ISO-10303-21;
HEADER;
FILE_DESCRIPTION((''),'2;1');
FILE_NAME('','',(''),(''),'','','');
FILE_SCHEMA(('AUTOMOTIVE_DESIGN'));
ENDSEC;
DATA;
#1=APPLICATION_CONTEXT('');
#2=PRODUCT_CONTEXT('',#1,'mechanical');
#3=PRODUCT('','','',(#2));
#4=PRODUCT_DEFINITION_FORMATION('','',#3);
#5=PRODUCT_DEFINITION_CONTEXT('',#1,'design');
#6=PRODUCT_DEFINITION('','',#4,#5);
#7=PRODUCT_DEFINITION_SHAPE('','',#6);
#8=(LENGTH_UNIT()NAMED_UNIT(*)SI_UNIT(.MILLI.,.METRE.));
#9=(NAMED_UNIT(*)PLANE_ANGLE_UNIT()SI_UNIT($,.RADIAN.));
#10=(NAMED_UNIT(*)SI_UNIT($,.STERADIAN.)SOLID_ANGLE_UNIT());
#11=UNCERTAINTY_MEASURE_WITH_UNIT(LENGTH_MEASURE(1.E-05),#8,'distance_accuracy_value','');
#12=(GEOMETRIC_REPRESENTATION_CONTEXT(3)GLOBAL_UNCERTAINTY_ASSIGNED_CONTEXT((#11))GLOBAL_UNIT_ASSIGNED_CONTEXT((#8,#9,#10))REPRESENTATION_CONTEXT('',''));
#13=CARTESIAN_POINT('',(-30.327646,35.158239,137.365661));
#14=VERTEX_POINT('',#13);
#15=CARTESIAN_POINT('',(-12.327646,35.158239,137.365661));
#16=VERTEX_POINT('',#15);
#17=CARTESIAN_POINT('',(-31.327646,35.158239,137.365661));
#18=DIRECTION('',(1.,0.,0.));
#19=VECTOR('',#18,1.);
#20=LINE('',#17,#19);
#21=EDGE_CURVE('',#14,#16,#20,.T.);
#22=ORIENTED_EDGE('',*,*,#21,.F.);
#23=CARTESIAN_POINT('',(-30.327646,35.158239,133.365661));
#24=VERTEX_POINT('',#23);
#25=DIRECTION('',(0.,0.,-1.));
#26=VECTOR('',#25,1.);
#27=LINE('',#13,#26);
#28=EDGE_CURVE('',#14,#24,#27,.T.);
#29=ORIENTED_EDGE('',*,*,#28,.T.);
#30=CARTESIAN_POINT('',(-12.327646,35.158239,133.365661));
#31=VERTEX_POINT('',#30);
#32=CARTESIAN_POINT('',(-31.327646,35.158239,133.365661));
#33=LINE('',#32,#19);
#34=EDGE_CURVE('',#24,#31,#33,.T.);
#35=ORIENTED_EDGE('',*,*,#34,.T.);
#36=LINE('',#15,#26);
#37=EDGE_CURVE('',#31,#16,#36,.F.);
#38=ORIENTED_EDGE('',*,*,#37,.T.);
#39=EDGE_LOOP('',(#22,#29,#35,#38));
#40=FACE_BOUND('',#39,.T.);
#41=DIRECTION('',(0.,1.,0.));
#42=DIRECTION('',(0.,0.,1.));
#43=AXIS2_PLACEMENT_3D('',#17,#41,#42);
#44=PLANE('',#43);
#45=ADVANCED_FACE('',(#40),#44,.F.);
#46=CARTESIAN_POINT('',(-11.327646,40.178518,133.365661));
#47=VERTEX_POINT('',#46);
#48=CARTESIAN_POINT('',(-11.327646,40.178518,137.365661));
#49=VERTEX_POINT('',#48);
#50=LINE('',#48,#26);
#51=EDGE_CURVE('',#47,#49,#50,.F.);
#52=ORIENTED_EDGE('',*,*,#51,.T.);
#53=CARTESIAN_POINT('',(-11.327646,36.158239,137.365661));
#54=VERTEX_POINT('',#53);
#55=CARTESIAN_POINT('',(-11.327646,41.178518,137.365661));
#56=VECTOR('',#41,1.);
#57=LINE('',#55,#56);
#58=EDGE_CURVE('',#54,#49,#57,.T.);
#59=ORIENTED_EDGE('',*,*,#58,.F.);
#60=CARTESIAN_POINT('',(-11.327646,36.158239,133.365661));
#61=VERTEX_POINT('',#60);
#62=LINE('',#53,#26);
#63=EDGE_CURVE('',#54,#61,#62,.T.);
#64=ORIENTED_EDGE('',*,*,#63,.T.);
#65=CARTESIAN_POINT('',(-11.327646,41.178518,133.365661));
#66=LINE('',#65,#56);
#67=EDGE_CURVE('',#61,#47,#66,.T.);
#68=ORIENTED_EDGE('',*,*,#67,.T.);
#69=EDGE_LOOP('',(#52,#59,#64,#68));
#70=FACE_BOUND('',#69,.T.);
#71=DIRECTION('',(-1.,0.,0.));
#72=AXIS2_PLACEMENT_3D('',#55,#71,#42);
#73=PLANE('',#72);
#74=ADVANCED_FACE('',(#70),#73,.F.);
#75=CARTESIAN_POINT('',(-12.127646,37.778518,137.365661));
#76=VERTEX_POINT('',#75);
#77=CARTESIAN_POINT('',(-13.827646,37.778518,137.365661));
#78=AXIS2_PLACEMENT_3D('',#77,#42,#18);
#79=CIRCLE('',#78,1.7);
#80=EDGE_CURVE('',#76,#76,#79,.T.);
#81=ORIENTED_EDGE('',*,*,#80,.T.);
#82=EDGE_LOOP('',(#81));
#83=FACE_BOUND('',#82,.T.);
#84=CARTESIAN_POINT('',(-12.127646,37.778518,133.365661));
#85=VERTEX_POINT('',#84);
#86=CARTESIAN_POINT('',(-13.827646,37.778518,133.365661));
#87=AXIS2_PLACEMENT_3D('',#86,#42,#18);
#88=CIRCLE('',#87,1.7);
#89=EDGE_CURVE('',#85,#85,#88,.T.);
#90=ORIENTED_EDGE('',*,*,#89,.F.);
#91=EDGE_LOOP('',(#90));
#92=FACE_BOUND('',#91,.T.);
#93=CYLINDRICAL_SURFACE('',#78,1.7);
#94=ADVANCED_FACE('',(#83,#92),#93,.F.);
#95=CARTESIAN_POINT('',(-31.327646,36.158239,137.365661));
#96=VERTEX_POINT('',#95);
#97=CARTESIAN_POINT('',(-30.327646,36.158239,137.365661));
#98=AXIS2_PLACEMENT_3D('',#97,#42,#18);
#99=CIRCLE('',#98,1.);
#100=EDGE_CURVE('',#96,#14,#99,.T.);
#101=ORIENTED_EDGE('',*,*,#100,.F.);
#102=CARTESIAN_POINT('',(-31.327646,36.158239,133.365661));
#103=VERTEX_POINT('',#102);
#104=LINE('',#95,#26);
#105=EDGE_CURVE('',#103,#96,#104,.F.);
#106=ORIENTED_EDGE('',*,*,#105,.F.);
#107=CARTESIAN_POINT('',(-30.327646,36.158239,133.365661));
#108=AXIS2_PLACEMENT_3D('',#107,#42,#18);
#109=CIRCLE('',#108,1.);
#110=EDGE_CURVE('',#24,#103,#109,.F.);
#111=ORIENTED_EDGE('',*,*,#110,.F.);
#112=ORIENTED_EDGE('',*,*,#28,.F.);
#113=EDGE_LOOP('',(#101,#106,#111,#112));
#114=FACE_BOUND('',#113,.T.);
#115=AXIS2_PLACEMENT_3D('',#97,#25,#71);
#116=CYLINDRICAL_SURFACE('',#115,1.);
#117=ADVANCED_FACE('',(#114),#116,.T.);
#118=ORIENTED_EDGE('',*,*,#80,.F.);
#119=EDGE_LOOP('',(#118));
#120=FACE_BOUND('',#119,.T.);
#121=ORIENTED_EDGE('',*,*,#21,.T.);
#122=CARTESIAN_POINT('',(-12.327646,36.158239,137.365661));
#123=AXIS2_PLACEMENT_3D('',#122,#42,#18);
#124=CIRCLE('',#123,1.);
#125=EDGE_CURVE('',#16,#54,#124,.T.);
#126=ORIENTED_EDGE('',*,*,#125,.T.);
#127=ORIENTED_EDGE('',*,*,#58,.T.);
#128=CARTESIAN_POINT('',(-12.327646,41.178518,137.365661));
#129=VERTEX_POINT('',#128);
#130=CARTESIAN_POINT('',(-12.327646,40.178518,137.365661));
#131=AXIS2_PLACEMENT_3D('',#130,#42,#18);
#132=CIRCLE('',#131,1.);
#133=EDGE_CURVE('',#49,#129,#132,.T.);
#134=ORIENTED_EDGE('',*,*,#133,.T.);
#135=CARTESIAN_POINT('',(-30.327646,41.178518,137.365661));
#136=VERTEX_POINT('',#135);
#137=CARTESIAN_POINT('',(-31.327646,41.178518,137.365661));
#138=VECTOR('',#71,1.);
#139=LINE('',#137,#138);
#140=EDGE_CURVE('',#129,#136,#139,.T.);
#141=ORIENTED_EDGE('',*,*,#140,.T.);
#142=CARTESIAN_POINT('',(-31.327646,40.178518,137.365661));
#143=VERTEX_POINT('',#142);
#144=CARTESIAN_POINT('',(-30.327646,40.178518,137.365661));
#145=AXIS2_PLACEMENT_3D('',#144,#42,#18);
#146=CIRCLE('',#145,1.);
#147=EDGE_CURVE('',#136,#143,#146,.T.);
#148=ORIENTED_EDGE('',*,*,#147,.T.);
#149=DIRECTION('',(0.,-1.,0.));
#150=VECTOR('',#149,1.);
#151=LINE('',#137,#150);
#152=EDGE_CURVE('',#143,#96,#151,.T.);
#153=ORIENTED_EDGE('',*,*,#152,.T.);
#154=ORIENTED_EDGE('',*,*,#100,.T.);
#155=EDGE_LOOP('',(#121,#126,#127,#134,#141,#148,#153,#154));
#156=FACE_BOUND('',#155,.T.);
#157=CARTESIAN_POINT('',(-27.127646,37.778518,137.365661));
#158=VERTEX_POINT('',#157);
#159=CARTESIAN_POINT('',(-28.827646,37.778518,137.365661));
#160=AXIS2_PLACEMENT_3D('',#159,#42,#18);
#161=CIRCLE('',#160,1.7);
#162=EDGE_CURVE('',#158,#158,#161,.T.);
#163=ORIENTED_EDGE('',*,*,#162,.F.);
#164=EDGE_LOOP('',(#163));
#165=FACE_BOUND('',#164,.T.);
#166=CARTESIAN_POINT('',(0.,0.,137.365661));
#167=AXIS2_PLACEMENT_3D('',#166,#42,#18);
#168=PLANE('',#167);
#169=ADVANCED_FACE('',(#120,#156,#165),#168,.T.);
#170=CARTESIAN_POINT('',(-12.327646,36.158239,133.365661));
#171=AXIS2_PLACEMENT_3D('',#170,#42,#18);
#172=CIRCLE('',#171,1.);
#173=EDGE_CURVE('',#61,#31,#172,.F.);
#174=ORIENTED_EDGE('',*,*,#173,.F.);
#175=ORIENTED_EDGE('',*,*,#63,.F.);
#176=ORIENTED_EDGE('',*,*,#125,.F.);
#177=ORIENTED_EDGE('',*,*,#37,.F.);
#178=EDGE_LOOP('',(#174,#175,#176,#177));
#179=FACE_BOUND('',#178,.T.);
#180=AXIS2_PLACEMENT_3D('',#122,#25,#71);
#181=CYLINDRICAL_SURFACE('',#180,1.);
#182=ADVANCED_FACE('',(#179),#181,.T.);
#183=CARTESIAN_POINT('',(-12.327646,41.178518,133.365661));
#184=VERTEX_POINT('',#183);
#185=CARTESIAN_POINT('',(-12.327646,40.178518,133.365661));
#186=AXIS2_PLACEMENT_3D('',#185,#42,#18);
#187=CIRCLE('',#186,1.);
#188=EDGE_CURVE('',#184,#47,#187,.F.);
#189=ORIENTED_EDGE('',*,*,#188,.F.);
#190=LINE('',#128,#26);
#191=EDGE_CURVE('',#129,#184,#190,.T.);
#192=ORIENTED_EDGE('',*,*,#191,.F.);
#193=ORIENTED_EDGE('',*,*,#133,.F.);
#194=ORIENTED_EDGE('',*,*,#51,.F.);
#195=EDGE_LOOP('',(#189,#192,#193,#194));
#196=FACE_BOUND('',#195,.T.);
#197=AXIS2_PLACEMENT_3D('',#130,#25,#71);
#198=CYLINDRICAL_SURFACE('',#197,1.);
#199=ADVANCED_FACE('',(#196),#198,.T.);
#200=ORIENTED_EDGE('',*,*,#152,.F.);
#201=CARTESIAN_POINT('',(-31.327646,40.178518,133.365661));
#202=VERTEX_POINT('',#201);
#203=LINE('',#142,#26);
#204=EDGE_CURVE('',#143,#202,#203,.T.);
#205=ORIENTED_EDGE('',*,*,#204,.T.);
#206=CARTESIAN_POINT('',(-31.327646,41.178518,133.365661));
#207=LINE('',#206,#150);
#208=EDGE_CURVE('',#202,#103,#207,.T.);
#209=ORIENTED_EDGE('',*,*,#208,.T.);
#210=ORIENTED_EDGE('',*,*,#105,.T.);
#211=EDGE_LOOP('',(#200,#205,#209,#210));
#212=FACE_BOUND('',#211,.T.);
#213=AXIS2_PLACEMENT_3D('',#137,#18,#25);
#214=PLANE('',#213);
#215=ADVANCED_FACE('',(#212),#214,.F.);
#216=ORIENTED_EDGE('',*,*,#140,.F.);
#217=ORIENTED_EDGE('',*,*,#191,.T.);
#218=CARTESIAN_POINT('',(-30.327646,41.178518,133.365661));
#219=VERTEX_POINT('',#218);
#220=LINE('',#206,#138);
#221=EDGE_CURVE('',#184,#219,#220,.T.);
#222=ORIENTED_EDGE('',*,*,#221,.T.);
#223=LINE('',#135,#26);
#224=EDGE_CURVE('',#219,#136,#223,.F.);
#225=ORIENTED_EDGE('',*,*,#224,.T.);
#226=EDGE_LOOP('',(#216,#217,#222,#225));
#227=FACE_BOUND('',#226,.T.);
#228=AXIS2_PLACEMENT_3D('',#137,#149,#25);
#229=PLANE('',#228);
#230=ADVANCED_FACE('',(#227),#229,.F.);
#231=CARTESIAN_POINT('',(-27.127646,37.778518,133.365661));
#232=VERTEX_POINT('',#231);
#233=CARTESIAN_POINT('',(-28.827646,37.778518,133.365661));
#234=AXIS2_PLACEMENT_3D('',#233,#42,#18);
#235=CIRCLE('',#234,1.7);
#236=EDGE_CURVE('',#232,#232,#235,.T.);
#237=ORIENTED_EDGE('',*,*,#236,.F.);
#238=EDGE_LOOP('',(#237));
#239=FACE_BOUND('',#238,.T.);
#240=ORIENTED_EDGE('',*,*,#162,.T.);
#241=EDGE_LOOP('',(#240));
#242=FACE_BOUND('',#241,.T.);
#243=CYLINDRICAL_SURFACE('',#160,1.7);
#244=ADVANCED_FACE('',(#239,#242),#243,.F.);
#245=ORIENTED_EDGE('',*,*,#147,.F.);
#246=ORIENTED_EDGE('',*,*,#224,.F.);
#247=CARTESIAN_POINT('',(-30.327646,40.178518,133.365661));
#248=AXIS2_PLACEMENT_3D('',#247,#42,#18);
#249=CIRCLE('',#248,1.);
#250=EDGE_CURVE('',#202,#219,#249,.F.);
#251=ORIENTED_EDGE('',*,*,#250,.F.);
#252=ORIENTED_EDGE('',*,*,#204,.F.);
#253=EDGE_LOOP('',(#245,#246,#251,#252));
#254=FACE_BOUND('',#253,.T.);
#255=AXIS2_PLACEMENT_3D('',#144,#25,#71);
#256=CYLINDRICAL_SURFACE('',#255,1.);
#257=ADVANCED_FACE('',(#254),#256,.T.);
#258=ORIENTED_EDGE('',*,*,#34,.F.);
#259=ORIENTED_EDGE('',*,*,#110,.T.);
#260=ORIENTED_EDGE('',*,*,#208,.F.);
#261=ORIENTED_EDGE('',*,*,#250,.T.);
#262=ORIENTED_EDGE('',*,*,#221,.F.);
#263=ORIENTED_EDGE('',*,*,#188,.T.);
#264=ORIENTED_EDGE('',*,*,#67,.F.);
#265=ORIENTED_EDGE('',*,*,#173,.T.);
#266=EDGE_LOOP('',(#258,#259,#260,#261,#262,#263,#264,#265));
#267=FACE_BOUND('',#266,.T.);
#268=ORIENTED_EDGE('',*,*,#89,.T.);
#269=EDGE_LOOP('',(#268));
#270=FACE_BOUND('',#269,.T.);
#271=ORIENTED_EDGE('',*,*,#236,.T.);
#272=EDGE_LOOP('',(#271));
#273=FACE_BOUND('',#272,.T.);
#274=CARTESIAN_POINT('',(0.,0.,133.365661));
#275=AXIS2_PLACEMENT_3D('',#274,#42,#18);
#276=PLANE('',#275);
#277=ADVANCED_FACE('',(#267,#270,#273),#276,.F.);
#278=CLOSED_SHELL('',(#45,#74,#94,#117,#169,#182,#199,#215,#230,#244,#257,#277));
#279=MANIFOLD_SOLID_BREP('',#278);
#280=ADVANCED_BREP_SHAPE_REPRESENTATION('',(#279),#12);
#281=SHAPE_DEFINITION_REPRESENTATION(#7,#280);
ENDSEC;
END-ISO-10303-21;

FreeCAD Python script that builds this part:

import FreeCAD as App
import Part
import Sketcher

V = App.Vector
Q = App.Units.Quantity


def edges_at(feature, points):
    """Names of the edges that pass closest to the given points."""
    edges = feature.Shape.Edges
    near = lambda p: min(range(len(edges)), key=lambda i: edges[i].distToShape(Part.Vertex(*p))[0])
    return sorted({f"Edge{near(p) + 1}" for p in points})


def add_polygon(sketch, points):
    """Adds a closed chain of lines whose ends are joined by coincident constraints."""
    first, n = sketch.GeometryCount, len(points)
    for a, b in zip(points, points[1:] + points[:1]):
        sketch.addGeometry(Part.LineSegment(App.Vector(*a, 0), App.Vector(*b, 0)), False)
    for i in range(n):
        sketch.addConstraint(Sketcher.Constraint("Coincident", first + i, 2, first + (i + 1) % n, 1))

doc = App.newDocument("Part")
body = doc.addObject("PartDesign::Body", "Body")

# Sketch on XY plane
sketch1 = body.newObject("Sketcher::SketchObject", "Sketch")
sketch1.AttachmentSupport = (doc.getObject("XY_Plane"), [""])
sketch1.MapMode = "FlatFace"
sketch1.AttachmentOffset = App.Placement(V(0, 0, 133.365661), App.Rotation())
add_polygon(sketch1, [(-31.327646, 41.178518), (-31.327646, 35.158239), (-11.327646, 35.158239), (-11.327646, 41.178518)])  # lines 0-3
sketch1.addConstraint(Sketcher.Constraint("Vertical", 0))
sketch1.addConstraint(Sketcher.Constraint("Horizontal", 1))
sketch1.addConstraint(Sketcher.Constraint("Vertical", 2))
sketch1.addConstraint(Sketcher.Constraint("Horizontal", 3))
sketch1.addConstraint(Sketcher.Constraint("DistanceX", 1, 1, 1, 2, Q("20 mm")))
sketch1.addConstraint(Sketcher.Constraint("DistanceY", 0, 2, 0, 1, Q("6.020279 mm")))
sketch1.addConstraint(Sketcher.Constraint("DistanceY", -1, 1, 0, 2, Q("35.158239 mm")))
sketch1.addConstraint(Sketcher.Constraint("DistanceX", 0, 2, -1, 1, Q("31.327646 mm")))
pad1 = body.newObject("PartDesign::Pad", "Pad")
pad1.Profile = sketch1
pad1.Length = 4
doc.recompute()

fillet = body.newObject("PartDesign::Fillet", "Fillet")
fillet.Base = (pad1, edges_at(pad1, [
    (-31.328, 41.179, 135.366),
    (-11.328, 41.179, 135.366),
    (-11.328, 35.158, 135.366),
    (-31.328, 35.158, 135.366),
]))
fillet.Radius = 1

# Sketch on XY plane
sketch2 = body.newObject("Sketcher::SketchObject", "Sketch001")
sketch2.AttachmentSupport = (doc.getObject("XY_Plane"), [""])
sketch2.MapMode = "FlatFace"
sketch2.AttachmentOffset = App.Placement(V(0, 0, 137.365661), App.Rotation())
sketch2.addGeometry(Part.Circle(V(-28.827646, 37.778518, 0), V(0, 0, 1), 1.7), False)
sketch2.addGeometry(Part.Circle(V(-13.827646, 37.778518, 0), V(0, 0, 1), 1.7), False)
sketch2.addConstraint(Sketcher.Constraint("Equal", 0, 1))
sketch2.addConstraint(Sketcher.Constraint("Horizontal", 0, 3, 1, 3))
sketch2.addConstraint(Sketcher.Constraint("Diameter", 0, Q("3.4 mm")))
sketch2.addConstraint(Sketcher.Constraint("DistanceX", 0, 3, 1, 3, Q("15 mm")))
sketch2.addConstraint(Sketcher.Constraint("DistanceY", -1, 1, 0, 3, Q("37.778518 mm")))
sketch2.addConstraint(Sketcher.Constraint("DistanceX", 0, 3, -1, 1, Q("28.827646 mm")))
doc.recompute()
hole = body.newObject("PartDesign::Hole", "Hole")
hole.Profile = sketch2
hole.ThreadType = "None"
hole.Diameter = 3.4
hole.DepthType = "Dimension"
hole.Depth = 16.5
hole.DrillPoint = "Angled"
hole.DrillPointAngle = 118

doc.recompute()
